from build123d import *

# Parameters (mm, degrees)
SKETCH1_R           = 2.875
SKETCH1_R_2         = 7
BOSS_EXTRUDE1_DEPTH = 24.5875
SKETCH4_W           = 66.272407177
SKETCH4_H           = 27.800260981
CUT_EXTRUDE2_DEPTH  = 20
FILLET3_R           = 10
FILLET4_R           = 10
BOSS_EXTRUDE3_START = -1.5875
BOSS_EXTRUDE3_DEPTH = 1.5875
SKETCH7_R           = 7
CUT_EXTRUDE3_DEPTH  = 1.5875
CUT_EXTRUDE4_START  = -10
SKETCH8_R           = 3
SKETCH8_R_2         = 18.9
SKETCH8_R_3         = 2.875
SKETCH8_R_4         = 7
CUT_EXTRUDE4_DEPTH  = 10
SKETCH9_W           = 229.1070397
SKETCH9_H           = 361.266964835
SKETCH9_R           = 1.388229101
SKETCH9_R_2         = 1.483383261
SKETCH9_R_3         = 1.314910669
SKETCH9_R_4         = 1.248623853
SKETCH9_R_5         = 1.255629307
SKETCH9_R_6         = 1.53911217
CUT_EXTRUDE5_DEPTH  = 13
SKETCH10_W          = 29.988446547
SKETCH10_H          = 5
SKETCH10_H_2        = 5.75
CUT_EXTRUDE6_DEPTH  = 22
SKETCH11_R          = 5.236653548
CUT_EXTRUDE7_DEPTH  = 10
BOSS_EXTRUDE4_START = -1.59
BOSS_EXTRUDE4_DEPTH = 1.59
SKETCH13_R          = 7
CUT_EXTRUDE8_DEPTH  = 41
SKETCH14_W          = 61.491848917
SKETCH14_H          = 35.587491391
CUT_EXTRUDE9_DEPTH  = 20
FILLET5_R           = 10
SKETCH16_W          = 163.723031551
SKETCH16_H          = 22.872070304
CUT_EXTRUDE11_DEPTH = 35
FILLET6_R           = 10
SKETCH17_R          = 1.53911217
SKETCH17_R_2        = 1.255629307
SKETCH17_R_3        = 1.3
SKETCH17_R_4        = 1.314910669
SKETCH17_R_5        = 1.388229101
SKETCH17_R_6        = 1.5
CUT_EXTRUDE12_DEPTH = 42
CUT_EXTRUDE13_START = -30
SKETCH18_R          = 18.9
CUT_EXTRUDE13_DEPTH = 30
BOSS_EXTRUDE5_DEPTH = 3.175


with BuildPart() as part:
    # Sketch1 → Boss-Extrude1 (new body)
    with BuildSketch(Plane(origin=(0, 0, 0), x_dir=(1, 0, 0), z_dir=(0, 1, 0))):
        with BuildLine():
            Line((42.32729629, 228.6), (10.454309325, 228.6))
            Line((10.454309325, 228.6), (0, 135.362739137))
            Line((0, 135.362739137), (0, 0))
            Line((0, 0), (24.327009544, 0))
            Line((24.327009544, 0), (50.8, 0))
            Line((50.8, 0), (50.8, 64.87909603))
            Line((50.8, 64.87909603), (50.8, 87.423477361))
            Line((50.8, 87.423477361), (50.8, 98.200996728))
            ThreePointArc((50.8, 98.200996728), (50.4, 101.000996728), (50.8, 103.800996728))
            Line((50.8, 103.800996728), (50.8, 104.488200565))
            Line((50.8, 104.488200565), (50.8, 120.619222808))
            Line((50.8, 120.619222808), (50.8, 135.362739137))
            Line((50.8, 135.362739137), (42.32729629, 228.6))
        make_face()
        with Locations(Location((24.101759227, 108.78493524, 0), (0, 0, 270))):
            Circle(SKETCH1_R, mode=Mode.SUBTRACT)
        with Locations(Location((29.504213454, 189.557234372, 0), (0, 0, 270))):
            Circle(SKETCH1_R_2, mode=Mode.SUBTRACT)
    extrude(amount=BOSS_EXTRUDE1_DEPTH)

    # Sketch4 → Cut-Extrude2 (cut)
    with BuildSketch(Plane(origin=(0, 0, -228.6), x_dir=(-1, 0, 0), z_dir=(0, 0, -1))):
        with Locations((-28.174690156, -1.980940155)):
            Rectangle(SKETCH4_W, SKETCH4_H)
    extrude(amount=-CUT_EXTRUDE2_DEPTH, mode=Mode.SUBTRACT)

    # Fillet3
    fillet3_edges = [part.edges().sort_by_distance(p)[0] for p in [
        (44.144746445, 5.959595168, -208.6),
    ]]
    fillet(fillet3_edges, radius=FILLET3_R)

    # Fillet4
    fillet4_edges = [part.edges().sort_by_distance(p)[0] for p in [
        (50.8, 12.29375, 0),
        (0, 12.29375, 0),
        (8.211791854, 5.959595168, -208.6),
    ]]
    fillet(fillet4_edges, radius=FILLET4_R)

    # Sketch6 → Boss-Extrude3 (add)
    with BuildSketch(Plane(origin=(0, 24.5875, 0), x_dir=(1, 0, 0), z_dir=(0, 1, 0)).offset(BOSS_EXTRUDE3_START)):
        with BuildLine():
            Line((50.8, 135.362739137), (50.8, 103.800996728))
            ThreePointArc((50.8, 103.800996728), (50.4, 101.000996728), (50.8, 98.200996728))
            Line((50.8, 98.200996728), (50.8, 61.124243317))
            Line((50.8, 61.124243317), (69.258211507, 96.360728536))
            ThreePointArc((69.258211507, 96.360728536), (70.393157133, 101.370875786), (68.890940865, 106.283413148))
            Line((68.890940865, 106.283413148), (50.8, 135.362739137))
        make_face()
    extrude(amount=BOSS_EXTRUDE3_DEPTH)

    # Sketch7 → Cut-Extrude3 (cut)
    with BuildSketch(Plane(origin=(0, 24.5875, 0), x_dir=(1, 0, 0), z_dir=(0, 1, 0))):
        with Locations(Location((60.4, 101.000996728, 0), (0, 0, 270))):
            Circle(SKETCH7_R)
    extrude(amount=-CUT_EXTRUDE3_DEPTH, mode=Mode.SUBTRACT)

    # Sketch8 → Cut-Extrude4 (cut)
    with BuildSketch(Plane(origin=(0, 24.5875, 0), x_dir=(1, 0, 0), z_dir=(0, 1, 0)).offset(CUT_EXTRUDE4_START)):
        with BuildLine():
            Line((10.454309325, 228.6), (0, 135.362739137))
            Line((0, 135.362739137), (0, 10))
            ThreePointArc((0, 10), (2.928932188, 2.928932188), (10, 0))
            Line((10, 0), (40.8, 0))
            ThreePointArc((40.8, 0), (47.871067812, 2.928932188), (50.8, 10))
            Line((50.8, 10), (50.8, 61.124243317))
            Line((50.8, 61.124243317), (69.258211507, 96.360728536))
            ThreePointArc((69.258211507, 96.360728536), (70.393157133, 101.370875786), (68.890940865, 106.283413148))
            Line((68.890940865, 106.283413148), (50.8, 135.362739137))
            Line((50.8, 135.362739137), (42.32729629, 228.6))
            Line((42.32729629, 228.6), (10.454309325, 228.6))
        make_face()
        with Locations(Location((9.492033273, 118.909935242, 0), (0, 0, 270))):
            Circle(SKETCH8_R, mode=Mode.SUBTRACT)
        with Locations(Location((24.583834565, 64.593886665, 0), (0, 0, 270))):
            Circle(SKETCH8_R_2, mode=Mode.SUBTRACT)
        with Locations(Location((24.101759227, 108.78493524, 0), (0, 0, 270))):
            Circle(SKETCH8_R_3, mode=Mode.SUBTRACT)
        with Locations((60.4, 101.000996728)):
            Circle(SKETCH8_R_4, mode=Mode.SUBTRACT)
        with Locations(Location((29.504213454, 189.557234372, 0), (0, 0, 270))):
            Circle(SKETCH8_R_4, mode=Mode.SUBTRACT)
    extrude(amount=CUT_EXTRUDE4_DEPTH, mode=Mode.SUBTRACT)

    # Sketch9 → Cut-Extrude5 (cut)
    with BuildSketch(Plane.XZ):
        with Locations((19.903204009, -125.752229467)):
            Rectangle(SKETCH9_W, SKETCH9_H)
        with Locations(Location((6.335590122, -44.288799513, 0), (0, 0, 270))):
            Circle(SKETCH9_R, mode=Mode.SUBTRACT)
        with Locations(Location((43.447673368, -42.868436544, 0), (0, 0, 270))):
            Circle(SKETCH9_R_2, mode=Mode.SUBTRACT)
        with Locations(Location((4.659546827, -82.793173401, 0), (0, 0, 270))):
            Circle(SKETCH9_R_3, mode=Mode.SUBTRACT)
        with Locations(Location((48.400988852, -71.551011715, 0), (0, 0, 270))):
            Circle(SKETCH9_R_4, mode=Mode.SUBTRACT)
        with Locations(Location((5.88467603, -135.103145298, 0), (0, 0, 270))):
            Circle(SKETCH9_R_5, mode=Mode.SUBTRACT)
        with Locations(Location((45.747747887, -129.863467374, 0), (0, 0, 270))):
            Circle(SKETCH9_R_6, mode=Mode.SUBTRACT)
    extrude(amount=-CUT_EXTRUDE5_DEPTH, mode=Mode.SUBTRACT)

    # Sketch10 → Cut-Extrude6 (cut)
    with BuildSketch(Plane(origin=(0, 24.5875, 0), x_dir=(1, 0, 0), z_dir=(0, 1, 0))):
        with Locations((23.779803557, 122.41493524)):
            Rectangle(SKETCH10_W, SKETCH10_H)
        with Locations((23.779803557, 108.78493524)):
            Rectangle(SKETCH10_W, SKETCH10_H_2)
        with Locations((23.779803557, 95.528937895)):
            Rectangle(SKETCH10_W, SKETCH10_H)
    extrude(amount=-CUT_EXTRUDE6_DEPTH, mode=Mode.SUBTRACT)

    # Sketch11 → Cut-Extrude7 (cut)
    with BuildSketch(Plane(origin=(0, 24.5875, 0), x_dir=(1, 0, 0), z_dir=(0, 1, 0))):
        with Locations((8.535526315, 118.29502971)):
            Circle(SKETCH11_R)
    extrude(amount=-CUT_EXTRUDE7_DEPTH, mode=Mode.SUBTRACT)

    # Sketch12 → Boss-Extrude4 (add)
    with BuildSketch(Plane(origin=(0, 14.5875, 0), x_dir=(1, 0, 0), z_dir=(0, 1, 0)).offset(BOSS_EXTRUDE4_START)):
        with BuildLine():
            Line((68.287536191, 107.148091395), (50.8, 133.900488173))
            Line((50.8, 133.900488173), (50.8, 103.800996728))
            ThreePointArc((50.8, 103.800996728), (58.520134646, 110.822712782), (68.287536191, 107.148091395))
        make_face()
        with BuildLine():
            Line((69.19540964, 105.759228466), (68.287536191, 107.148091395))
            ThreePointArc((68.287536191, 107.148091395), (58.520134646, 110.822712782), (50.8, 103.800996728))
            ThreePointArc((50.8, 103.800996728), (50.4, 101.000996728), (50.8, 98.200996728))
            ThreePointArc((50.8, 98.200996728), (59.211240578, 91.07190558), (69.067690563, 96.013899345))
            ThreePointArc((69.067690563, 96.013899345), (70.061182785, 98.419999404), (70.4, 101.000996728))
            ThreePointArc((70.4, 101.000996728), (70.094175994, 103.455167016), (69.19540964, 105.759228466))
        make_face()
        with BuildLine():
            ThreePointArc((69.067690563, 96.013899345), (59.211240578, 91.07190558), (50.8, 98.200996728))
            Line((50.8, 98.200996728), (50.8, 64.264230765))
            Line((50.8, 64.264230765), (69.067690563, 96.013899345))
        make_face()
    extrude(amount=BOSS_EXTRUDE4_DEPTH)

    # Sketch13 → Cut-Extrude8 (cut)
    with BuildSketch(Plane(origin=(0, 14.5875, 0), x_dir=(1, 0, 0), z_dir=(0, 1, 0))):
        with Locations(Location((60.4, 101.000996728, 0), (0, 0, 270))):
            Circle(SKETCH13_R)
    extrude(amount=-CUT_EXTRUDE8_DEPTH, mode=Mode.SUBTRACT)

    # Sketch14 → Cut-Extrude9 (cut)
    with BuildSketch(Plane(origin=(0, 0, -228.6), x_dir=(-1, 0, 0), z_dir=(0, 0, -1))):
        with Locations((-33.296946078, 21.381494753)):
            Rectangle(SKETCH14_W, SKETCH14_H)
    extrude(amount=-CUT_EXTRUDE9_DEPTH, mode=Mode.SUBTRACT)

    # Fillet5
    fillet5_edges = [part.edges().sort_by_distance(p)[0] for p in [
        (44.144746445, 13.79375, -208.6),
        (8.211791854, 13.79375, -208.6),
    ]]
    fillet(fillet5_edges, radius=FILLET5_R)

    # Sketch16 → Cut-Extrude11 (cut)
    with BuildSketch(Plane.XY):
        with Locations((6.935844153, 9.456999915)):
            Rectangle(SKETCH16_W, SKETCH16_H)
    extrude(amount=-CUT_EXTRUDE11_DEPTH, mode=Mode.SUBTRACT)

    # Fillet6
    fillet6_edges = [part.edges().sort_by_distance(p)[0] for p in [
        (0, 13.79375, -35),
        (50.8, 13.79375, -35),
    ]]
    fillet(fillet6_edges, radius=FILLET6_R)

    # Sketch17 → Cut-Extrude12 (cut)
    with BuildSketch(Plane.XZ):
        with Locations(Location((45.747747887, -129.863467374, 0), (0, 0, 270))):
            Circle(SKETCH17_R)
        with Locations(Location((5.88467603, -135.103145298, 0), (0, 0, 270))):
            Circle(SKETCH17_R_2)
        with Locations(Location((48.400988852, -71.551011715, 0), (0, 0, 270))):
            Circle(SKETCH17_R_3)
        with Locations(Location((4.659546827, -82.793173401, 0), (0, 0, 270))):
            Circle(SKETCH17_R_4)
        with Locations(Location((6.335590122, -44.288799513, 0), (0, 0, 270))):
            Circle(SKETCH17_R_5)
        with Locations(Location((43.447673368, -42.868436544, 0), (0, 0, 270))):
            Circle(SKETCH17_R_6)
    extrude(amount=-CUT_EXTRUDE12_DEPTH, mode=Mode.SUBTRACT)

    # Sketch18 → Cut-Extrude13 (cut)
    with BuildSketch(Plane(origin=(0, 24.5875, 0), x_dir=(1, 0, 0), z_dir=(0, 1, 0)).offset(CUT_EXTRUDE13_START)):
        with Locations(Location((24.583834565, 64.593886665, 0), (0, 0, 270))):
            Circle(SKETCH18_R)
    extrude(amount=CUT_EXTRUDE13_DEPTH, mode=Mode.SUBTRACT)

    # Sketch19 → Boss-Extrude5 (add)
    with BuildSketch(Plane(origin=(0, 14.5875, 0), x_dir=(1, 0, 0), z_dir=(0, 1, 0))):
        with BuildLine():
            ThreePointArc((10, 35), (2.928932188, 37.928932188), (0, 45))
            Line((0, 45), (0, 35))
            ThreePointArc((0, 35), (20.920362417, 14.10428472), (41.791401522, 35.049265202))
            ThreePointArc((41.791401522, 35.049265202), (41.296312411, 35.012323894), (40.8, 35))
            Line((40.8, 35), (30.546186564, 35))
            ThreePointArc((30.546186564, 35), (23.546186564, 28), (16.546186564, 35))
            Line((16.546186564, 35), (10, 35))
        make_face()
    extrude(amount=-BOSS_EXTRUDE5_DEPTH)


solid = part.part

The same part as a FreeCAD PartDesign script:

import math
import FreeCAD as App
import Part
import Sketcher
Q = App.Units.Quantity


def edges_at(feature, points):
    """Names of the edges that pass closest to the given points."""
    edges = feature.Shape.Edges
    near = lambda p: min(range(len(edges)), key=lambda i: edges[i].distToShape(Part.Vertex(*p))[0])
    return sorted({f"Edge{near(p) + 1}" for p in points})

doc = App.newDocument("Part")
body = doc.addObject("PartDesign::Body", "Body")

sketch1 = body.newObject("Sketcher::SketchObject", "Sketch")
sketch1.AttachmentSupport = (doc.getObject("XZ_Plane"), [""])
sketch1.MapMode = "FlatFace"
sketch1.addGeometry(Part.LineSegment(App.Vector(42.327296, -228.6, 0), App.Vector(10.454309, -228.6, 0)), False)
sketch1.addGeometry(Part.LineSegment(App.Vector(10.454309, -228.6, 0), App.Vector(0, -135.362739, 0)), False)
sketch1.addGeometry(Part.LineSegment(App.Vector(0, -135.362739, 0), App.Vector(0, 0, 0)), False)
sketch1.addGeometry(Part.LineSegment(App.Vector(0, 0, 0), App.Vector(50.8, 0, 0)), False)
sketch1.addGeometry(Part.LineSegment(App.Vector(50.8, 0, 0), App.Vector(50.8, -98.200997, 0)), False)
sketch1.addGeometry(Part.ArcOfCircle(Part.Circle(App.Vector(60.4, -101.000997, 0), App.Vector(0, 0, 1), 10), math.radians(163.739795), math.radians(196.260205)), False)
sketch1.addGeometry(Part.LineSegment(App.Vector(50.8, -103.800997, 0), App.Vector(50.8, -135.362739, 0)), False)
sketch1.addGeometry(Part.LineSegment(App.Vector(50.8, -135.362739, 0), App.Vector(42.327296, -228.6, 0)), False)
sketch1.addGeometry(Part.Circle(App.Vector(24.101759, -108.784935, 0), App.Vector(0, 0, 1), 2.875), False)
sketch1.addGeometry(Part.Circle(App.Vector(29.504213, -189.557234, 0), App.Vector(0, 0, 1), 7), False)
sketch1.addConstraint(Sketcher.Constraint("Coincident", 0, 2, 1, 1))
sketch1.addConstraint(Sketcher.Constraint("Coincident", 1, 2, 2, 1))
sketch1.addConstraint(Sketcher.Constraint("Coincident", 2, 2, 3, 1))
sketch1.addConstraint(Sketcher.Constraint("Coincident", 3, 2, 4, 1))
sketch1.addConstraint(Sketcher.Constraint("Coincident", 4, 2, 5, 1))
sketch1.addConstraint(Sketcher.Constraint("Coincident", 5, 2, 6, 1))
sketch1.addConstraint(Sketcher.Constraint("Coincident", 6, 2, 7, 1))
sketch1.addConstraint(Sketcher.Constraint("Coincident", 7, 2, 0, 1))
sketch1.addConstraint(Sketcher.Constraint("Horizontal", 0))
sketch1.addConstraint(Sketcher.Constraint("Vertical", 2))
sketch1.addConstraint(Sketcher.Constraint("Horizontal", 3))
sketch1.addConstraint(Sketcher.Constraint("Vertical", 4))
sketch1.addConstraint(Sketcher.Constraint("Vertical", 6))
sketch1.addConstraint(Sketcher.Constraint("Coincident", 2, 2, -1, 1))
sketch1.addConstraint(Sketcher.Constraint("Horizontal", 1, 2, 6, 2))
sketch1.addConstraint(Sketcher.Constraint("Vertical", 4, 2, 5, 2))
sketch1.addConstraint(Sketcher.Constraint("Diameter", 9, Q("14 mm")))
sketch1.addConstraint(Sketcher.Constraint("Radius", 5, Q("10 mm")))
sketch1.addConstraint(Sketcher.Constraint("Diameter", 8, Q("5.75 mm")))
sketch1.addConstraint(Sketcher.Constraint("DistanceX", 3, 1, 3, 2, Q("50.8 mm")))
sketch1.addConstraint(Sketcher.Constraint("DistanceX", -1, 1, 5, 3, Q("60.4 mm")))
sketch1.addConstraint(Sketcher.Constraint("DistanceY", 0, 2, -1, 1, Q("228.6 mm")))
sketch1.addConstraint(Sketcher.Constraint("DistanceY", 2, 1, 2, 2, Q("135.362739 mm")))
sketch1.addConstraint(Sketcher.Constraint("DistanceY", 9, 3, 8, 3, Q("80.772299 mm")))
sketch1.addConstraint(Sketcher.Constraint("Distance", 1, Q("93.821529 mm")))
sketch1.addConstraint(Sketcher.Constraint("DistanceX", 0, 2, 0, 1, Q("31.872987 mm")))
sketch1.addConstraint(Sketcher.Constraint("DistanceY", 4, 2, 4, 1, Q("98.200997 mm")))
sketch1.addConstraint(Sketcher.Constraint("DistanceX", -1, 1, 8, 3, Q("24.101759 mm")))
sketch1.addConstraint(Sketcher.Constraint("DistanceY", 8, 3, 5, 3, Q("7.783939 mm")))
sketch1.addConstraint(Sketcher.Constraint("DistanceX", -1, 1, 9, 3, Q("29.504213 mm")))
pad1 = body.newObject("PartDesign::Pad", "Pad")
pad1.Profile = sketch1
pad1.Length = 24.5875
pad1.Reversed = True

sketch2 = body.newObject("Sketcher::SketchObject", "Sketch001")
sketch2.AttachmentSupport = (doc.getObject("XY_Plane"), [""])
sketch2.MapMode = "FlatFace"
sketch2.AttachmentOffset = App.Placement(App.Vector(0, 0, -228.6), App.Rotation())
sketch2.addGeometry(Part.LineSegment(App.Vector(61.310894, 11.91919, 0), App.Vector(61.310894, -15.881071, 0)), False)
sketch2.addGeometry(Part.LineSegment(App.Vector(61.310894, -15.881071, 0), App.Vector(-4.961513, -15.881071, 0)), False)
sketch2.addGeometry(Part.LineSegment(App.Vector(-4.961513, -15.881071, 0), App.Vector(-4.961513, 11.91919, 0)), False)
sketch2.addGeometry(Part.LineSegment(App.Vector(-4.961513, 11.91919, 0), App.Vector(61.310894, 11.91919, 0)), False)
sketch2.addConstraint(Sketcher.Constraint("Coincident", 0, 2, 1, 1))
sketch2.addConstraint(Sketcher.Constraint("Coincident", 1, 2, 2, 1))
sketch2.addConstraint(Sketcher.Constraint("Coincident", 2, 2, 3, 1))
sketch2.addConstraint(Sketcher.Constraint("Coincident", 3, 2, 0, 1))
sketch2.addConstraint(Sketcher.Constraint("Vertical", 0))
sketch2.addConstraint(Sketcher.Constraint("Horizontal", 1))
sketch2.addConstraint(Sketcher.Constraint("Vertical", 2))
sketch2.addConstraint(Sketcher.Constraint("Horizontal", 3))
sketch2.addConstraint(Sketcher.Constraint("DistanceY", 0, 2, 0, 1, Q("27.800261 mm")))
sketch2.addConstraint(Sketcher.Constraint("DistanceX", 1, 2, 1, 1, Q("66.272407 mm")))
sketch2.addConstraint(Sketcher.Constraint("DistanceY", 0, 2, -1, 1, Q("15.881071 mm")))
sketch2.addConstraint(Sketcher.Constraint("DistanceX", -1, 1, 0, 2, Q("61.310894 mm")))
pocket1 = body.newObject("PartDesign::Pocket", "Pocket")
pocket1.Profile = sketch2
pocket1.Length = 20
pocket1.Reversed = True
doc.recompute()

fillet = body.newObject("PartDesign::Fillet", "Fillet")
fillet.Base = (pocket1, edges_at(pocket1, [(44.145, 5.96, -208.6)]))
fillet.Radius = 10
doc.recompute()

fillet2 = body.newObject("PartDesign::Fillet", "Fillet001")
fillet2.Base = (fillet, edges_at(fillet, [(50.8, 12.294, 0), (0, 12.294, 0), (8.212, 5.96, -208.6)]))
fillet2.Radius = 10

sketch3 = body.newObject("Sketcher::SketchObject", "Sketch002")
sketch3.AttachmentSupport = (doc.getObject("XZ_Plane"), [""])
sketch3.MapMode = "FlatFace"
sketch3.AttachmentOffset = App.Placement(App.Vector(0, 0, -23), App.Rotation())
sketch3.addGeometry(Part.LineSegment(App.Vector(50.8, -135.362739, 0), App.Vector(50.8, -103.800997, 0)), False)
sketch3.addGeometry(Part.ArcOfCircle(Part.Circle(App.Vector(60.4, -101.000997, 0), App.Vector(0, 0, 1), 10), math.radians(163.739795), math.radians(196.260205)), False)
sketch3.addGeometry(Part.LineSegment(App.Vector(50.8, -98.200997, 0), App.Vector(50.8, -61.124243, 0)), False)
sketch3.addGeometry(Part.LineSegment(App.Vector(50.8, -61.124243, 0), App.Vector(69.258212, -96.360729, 0)), False)
sketch3.addGeometry(Part.ArcOfCircle(Part.Circle(App.Vector(60.4, -101.000997, 0), App.Vector(0, 0, 1), 10), math.radians(-31.886726), math.radians(27.647258)), False)
sketch3.addGeometry(Part.LineSegment(App.Vector(68.890941, -106.283413, 0), App.Vector(50.8, -135.362739, 0)), False)
sketch3.addConstraint(Sketcher.Constraint("Coincident", 0, 2, 1, 2))
sketch3.addConstraint(Sketcher.Constraint("Coincident", 1, 1, 2, 1))
sketch3.addConstraint(Sketcher.Constraint("Coincident", 2, 2, 3, 1))
sketch3.addConstraint(Sketcher.Constraint("Tangent", 3, 2, 4, 2))
sketch3.addConstraint(Sketcher.Constraint("Tangent", 4, 1, 5, 1))
sketch3.addConstraint(Sketcher.Constraint("Coincident", 5, 2, 0, 1))
sketch3.addConstraint(Sketcher.Constraint("Vertical", 0))
sketch3.addConstraint(Sketcher.Constraint("Vertical", 2))
sketch3.addConstraint(Sketcher.Constraint("Coincident", 4, 3, 1, 3))
sketch3.addConstraint(Sketcher.Constraint("Equal", 1, 4))
sketch3.addConstraint(Sketcher.Constraint("Vertical", 0, 2, 1, 1))
sketch3.addConstraint(Sketcher.Constraint("Radius", 1, Q("10 mm")))
sketch3.addConstraint(Sketcher.Constraint("DistanceX", -1, 1, 1, 3, Q("60.4 mm")))
sketch3.addConstraint(Sketcher.Constraint("DistanceX", -1, 1, 0, 2, Q("50.8 mm")))
sketch3.addConstraint(Sketcher.Constraint("Distance", 3, Q("39.778329 mm")))
sketch3.addConstraint(Sketcher.Constraint("DistanceY", 0, 1, 0, 2, Q("31.561742 mm")))
sketch3.addConstraint(Sketcher.Constraint("DistanceY", 3, 2, -1, 1, Q("96.360729 mm")))
pad2 = body.newObject("PartDesign::Pad", "Pad001")
pad2.Profile = sketch3
pad2.Length = 1.5875
pad2.Reversed = True

sketch4 = body.newObject("Sketcher::SketchObject", "Sketch003")
sketch4.AttachmentSupport = (doc.getObject("XZ_Plane"), [""])
sketch4.MapMode = "FlatFace"
sketch4.AttachmentOffset = App.Placement(App.Vector(0, 0, -24.5875), App.Rotation())
sketch4.addGeometry(Part.Circle(App.Vector(60.4, -101.000997, 0), App.Vector(0, 0, 1), 7), False)
sketch4.addConstraint(Sketcher.Constraint("Diameter", 0, Q("14 mm")))
sketch4.addConstraint(Sketcher.Constraint("DistanceX", -1, 1, 0, 3, Q("60.4 mm")))
sketch4.addConstraint(Sketcher.Constraint("DistanceY", 0, 3, -1, 1, Q("101.000997 mm")))
pocket2 = body.newObject("PartDesign::Pocket", "Pocket001")
pocket2.Profile = sketch4
pocket2.Length = 1.5875
pocket2.Reversed = True

sketch5 = body.newObject("Sketcher::SketchObject", "Sketch004")
sketch5.AttachmentSupport = (doc.getObject("XZ_Plane"), [""])
sketch5.MapMode = "FlatFace"
sketch5.AttachmentOffset = App.Placement(App.Vector(0, 0, -14.5875), App.Rotation())
sketch5.addGeometry(Part.LineSegment(App.Vector(10.454309, -228.6, 0), App.Vector(0, -135.362739, 0)), False)
sketch5.addGeometry(Part.LineSegment(App.Vector(0, -135.362739, 0), App.Vector(0, -10, 0)), False)
sketch5.addGeometry(Part.ArcOfCircle(Part.Circle(App.Vector(10, -10, 0), App.Vector(0, 0, 1), 10), math.radians(90), math.radians(180)), False)
sketch5.addGeometry(Part.LineSegment(App.Vector(10, 0, 0), App.Vector(40.8, 0, 0)), False)
sketch5.addGeometry(Part.ArcOfCircle(Part.Circle(App.Vector(40.8, -10, 0), App.Vector(0, 0, 1), 10), math.radians(0), math.radians(90)), False)
sketch5.addGeometry(Part.LineSegment(App.Vector(50.8, -10, 0), App.Vector(50.8, -61.124243, 0)), False)
sketch5.addGeometry(Part.LineSegment(App.Vector(50.8, -61.124243, 0), App.Vector(69.258212, -96.360729, 0)), False)
sketch5.addGeometry(Part.ArcOfCircle(Part.Circle(App.Vector(60.4, -101.000997, 0), App.Vector(0, 0, 1), 10), math.radians(-31.886726), math.radians(27.647258)), False)
sketch5.addGeometry(Part.LineSegment(App.Vector(68.890941, -106.283413, 0), App.Vector(50.8, -135.362739, 0)), False)
sketch5.addGeometry(Part.LineSegment(App.Vector(50.8, -135.362739, 0), App.Vector(42.327296, -228.6, 0)), False)
sketch5.addGeometry(Part.LineSegment(App.Vector(42.327296, -228.6, 0), App.Vector(10.454309, -228.6, 0)), False)
sketch5.addGeometry(Part.Circle(App.Vector(24.583835, -64.593887, 0), App.Vector(0, 0, 1), 18.9), False)
sketch5.addGeometry(Part.Circle(App.Vector(9.492033, -118.909935, 0), App.Vector(0, 0, 1), 3), False)
sketch5.addGeometry(Part.Circle(App.Vector(24.101759, -108.784935, 0), App.Vector(0, 0, 1), 2.875), False)
sketch5.addGeometry(Part.Circle(App.Vector(60.4, -101.000997, 0), App.Vector(0, 0, 1), 7), False)
sketch5.addGeometry(Part.Circle(App.Vector(29.504213, -189.557234, 0), App.Vector(0, 0, 1), 7), False)
sketch5.addConstraint(Sketcher.Constraint("Coincident", 0, 2, 1, 1))
sketch5.addConstraint(Sketcher.Constraint("Tangent", 1, 2, 2, 2))
sketch5.addConstraint(Sketcher.Constraint("Tangent", 2, 1, 3, 1))
sketch5.addConstraint(Sketcher.Constraint("Tangent", 3, 2, 4, 2))
sketch5.addConstraint(Sketcher.Constraint("Tangent", 4, 1, 5, 1))
sketch5.addConstraint(Sketcher.Constraint("Coincident", 5, 2, 6, 1))
sketch5.addConstraint(Sketcher.Constraint("Tangent", 6, 2, 7, 2))
sketch5.addConstraint(Sketcher.Constraint("Tangent", 7, 1, 8, 1))
sketch5.addConstraint(Sketcher.Constraint("Coincident", 8, 2, 9, 1))
sketch5.addConstraint(Sketcher.Constraint("Coincident", 9, 2, 10, 1))
sketch5.addConstraint(Sketcher.Constraint("Coincident", 10, 2, 0, 1))
sketch5.addConstraint(Sketcher.Constraint("Vertical", 1))
sketch5.addConstraint(Sketcher.Constraint("Horizontal", 3))
sketch5.addConstraint(Sketcher.Constraint("Vertical", 5))
sketch5.addConstraint(Sketcher.Constraint("Horizontal", 10))
sketch5.addConstraint(Sketcher.Constraint("Coincident", 14, 3, 7, 3))
sketch5.addConstraint(Sketcher.Constraint("Equal", 2, 4))
sketch5.addConstraint(Sketcher.Constraint("Equal", 4, 7))
sketch5.addConstraint(Sketcher.Constraint("Equal", 14, 15))
sketch5.addConstraint(Sketcher.Constraint("PointOnObject", 0, 2, -2))
sketch5.addConstraint(Sketcher.Constraint("PointOnObject", 2, 1, -1))
sketch5.addConstraint(Sketcher.Constraint("Horizontal", 0, 2, 8, 2))
sketch5.addConstraint(Sketcher.Constraint("Vertical", 5, 2, 8, 2))
sketch5.addConstraint(Sketcher.Constraint("Diameter", 12, Q("6 mm")))
sketch5.addConstraint(Sketcher.Constraint("Diameter", 14, Q("14 mm")))
sketch5.addConstraint(Sketcher.Constraint("Radius", 2, Q("10 mm")))
sketch5.addConstraint(Sketcher.Constraint("Diameter", 11, Q("37.8 mm")))
sketch5.addConstraint(Sketcher.Constraint("Diameter", 13, Q("5.75 mm")))
sketch5.addConstraint(Sketcher.Constraint("DistanceX", 3, 1, 3, 2, Q("30.8 mm")))
sketch5.addConstraint(Sketcher.Constraint("DistanceX", -1, 1, 7, 3, Q("60.4 mm")))
sketch5.addConstraint(Sketcher.Constraint("DistanceY", 9, 2, -1, 1, Q("228.6 mm")))
sketch5.addConstraint(Sketcher.Constraint("DistanceY", 12, 3, 13, 3, Q("10.125 mm")))
sketch5.addConstraint(Sketcher.Constraint("DistanceY", 1, 1, 1, 2, Q("125.362739 mm")))
sketch5.addConstraint(Sketcher.Constraint("DistanceX", 12, 3, 11, 3, Q("15.091801 mm")))
sketch5.addConstraint(Sketcher.Constraint("DistanceY", 15, 3, 12, 3, Q("70.647299 mm")))
sketch5.addConstraint(Sketcher.Constraint("Distance", 0, Q("93.821529 mm")))
sketch5.addConstraint(Sketcher.Constraint("Distance", 6, Q("39.778329 mm")))
sketch5.addConstraint(Sketcher.Constraint("DistanceX", 10, 2, 10, 1, Q("31.872987 mm")))
sketch5.addConstraint(Sketcher.Constraint("DistanceY", 5, 2, 5, 1, Q("51.124243 mm")))
sketch5.addConstraint(Sketcher.Constraint("DistanceX", -1, 1, 13, 3, Q("24.101759 mm")))
sketch5.addConstraint(Sketcher.Constraint("DistanceY", 7, 3, 11, 3, Q("36.40711 mm")))
sketch5.addConstraint(Sketcher.Constraint("DistanceY", 12, 3, 7, 3, Q("17.908939 mm")))
sketch5.addConstraint(Sketcher.Constraint("DistanceX", 12, 3, 15, 3, Q("20.01218 mm")))
sketch5.addConstraint(Sketcher.Constraint("DistanceX", -1, 1, 11, 3, Q("24.583835 mm")))
pocket3 = body.newObject("PartDesign::Pocket", "Pocket002")
pocket3.Profile = sketch5
pocket3.Length = 10

sketch6 = body.newObject("Sketcher::SketchObject", "Sketch005")
sketch6.AttachmentSupport = (doc.getObject("XZ_Plane"), [""])
sketch6.MapMode = "FlatFace"
sketch6.addGeometry(Part.LineSegment(App.Vector(-94.650316, 54.881253, 0), App.Vector(-94.650316, -306.385712, 0)), False)
sketch6.addGeometry(Part.LineSegment(App.Vector(-94.650316, -306.385712, 0), App.Vector(134.456724, -306.385712, 0)), False)
sketch6.addGeometry(Part.LineSegment(App.Vector(134.456724, -306.385712, 0), App.Vector(134.456724, 54.881253, 0)), False)
sketch6.addGeometry(Part.LineSegment(App.Vector(134.456724, 54.881253, 0), App.Vector(-94.650316, 54.881253, 0)), False)
sketch6.addGeometry(Part.Circle(App.Vector(5.884676, -135.103145, 0), App.Vector(0, 0, 1), 1.255629), False)
sketch6.addGeometry(Part.Circle(App.Vector(45.747748, -129.863467, 0), App.Vector(0, 0, 1), 1.539112), False)
sketch6.addGeometry(Part.Circle(App.Vector(4.659547, -82.793173, 0), App.Vector(0, 0, 1), 1.314911), False)
sketch6.addGeometry(Part.Circle(App.Vector(6.33559, -44.2888, 0), App.Vector(0, 0, 1), 1.388229), False)
sketch6.addGeometry(Part.Circle(App.Vector(48.400989, -71.551012, 0), App.Vector(0, 0, 1), 1.248624), False)
sketch6.addGeometry(Part.Circle(App.Vector(43.447673, -42.868437, 0), App.Vector(0, 0, 1), 1.483383), False)
sketch6.addConstraint(Sketcher.Constraint("Coincident", 0, 2, 1, 1))
sketch6.addConstraint(Sketcher.Constraint("Coincident", 1, 2, 2, 1))
sketch6.addConstraint(Sketcher.Constraint("Coincident", 2, 2, 3, 1))
sketch6.addConstraint(Sketcher.Constraint("Coincident", 3, 2, 0, 1))
sketch6.addConstraint(Sketcher.Constraint("Vertical", 0))
sketch6.addConstraint(Sketcher.Constraint("Horizontal", 1))
sketch6.addConstraint(Sketcher.Constraint("Vertical", 2))
sketch6.addConstraint(Sketcher.Constraint("Horizontal", 3))
sketch6.addConstraint(Sketcher.Constraint("Diameter", 4, Q("2.511259 mm")))
sketch6.addConstraint(Sketcher.Constraint("Diameter", 6, Q("2.629821 mm")))
sketch6.addConstraint(Sketcher.Constraint("Diameter", 7, Q("2.776458 mm")))
sketch6.addConstraint(Sketcher.Constraint("Diameter", 5, Q("3.078224 mm")))
sketch6.addConstraint(Sketcher.Constraint("Diameter", 8, Q("2.497248 mm")))
sketch6.addConstraint(Sketcher.Constraint("Diameter", 9, Q("2.966767 mm")))
sketch6.addConstraint(Sketcher.Constraint("DistanceX", 1, 1, 1, 2, Q("229.10704 mm")))
sketch6.addConstraint(Sketcher.Constraint("DistanceY", 7, 3, -1, 1, Q("44.2888 mm")))
sketch6.addConstraint(Sketcher.Constraint("DistanceX", 6, 3, 5, 3, Q("41.088201 mm")))
sketch6.addConstraint(Sketcher.Constraint("DistanceX", 7, 3, 8, 3, Q("42.065399 mm")))
sketch6.addConstraint(Sketcher.Constraint("DistanceY", 0, 2, 8, 3, Q("234.8347 mm")))
sketch6.addConstraint(Sketcher.Constraint("DistanceY", 4, 3, 3, 2, Q("189.984398 mm")))
sketch6.addConstraint(Sketcher.Constraint("DistanceY", 0, 2, 0, 1, Q("361.266965 mm")))
sketch6.addConstraint(Sketcher.Constraint("DistanceX", -1, 1, 7, 3, Q("6.33559 mm")))
sketch6.addConstraint(Sketcher.Constraint("DistanceY", 8, 3, -1, 1, Q("71.551012 mm")))
sketch6.addConstraint(Sketcher.Constraint("DistanceX", 4, 3, 5, 3, Q("39.863072 mm")))
sketch6.addConstraint(Sketcher.Constraint("DistanceY", 4, 3, 6, 3, Q("52.309972 mm")))
sketch6.addConstraint(Sketcher.Constraint("DistanceX", 5, 3, 8, 3, Q("2.653241 mm")))
sketch6.addConstraint(Sketcher.Constraint("DistanceY", 5, 3, 9, 3, Q("86.995031 mm")))
sketch6.addConstraint(Sketcher.Constraint("DistanceY", 4, 3, 9, 3, Q("92.234709 mm")))
sketch6.addConstraint(Sketcher.Constraint("DistanceX", 0, 2, 4, 3, Q("100.534992 mm")))
sketch6.addConstraint(Sketcher.Constraint("DistanceX", 9, 3, 2, 2, Q("91.00905 mm")))
pocket4 = body.newObject("PartDesign::Pocket", "Pocket003")
pocket4.Profile = sketch6
pocket4.Length = 13

sketch7 = body.newObject("Sketcher::SketchObject", "Sketch006")
sketch7.AttachmentSupport = (doc.getObject("XZ_Plane"), [""])
sketch7.MapMode = "FlatFace"
sketch7.AttachmentOffset = App.Placement(App.Vector(0, 0, -24.5875), App.Rotation())
sketch7.addGeometry(Part.LineSegment(App.Vector(8.78558, -124.914935, 0), App.Vector(8.78558, -119.914935, 0)), False)
sketch7.addGeometry(Part.LineSegment(App.Vector(8.78558, -119.914935, 0), App.Vector(38.774027, -119.914935, 0)), False)
sketch7.addGeometry(Part.LineSegment(App.Vector(38.774027, -119.914935, 0), App.Vector(38.774027, -124.914935, 0)), False)
sketch7.addGeometry(Part.LineSegment(App.Vector(38.774027, -124.914935, 0), App.Vector(8.78558, -124.914935, 0)), False)
sketch7.addGeometry(Part.LineSegment(App.Vector(8.78558, -111.659935, 0), App.Vector(8.78558, -105.909935, 0)), False)
sketch7.addGeometry(Part.LineSegment(App.Vector(8.78558, -105.909935, 0), App.Vector(38.774027, -105.909935, 0)), False)
sketch7.addGeometry(Part.LineSegment(App.Vector(38.774027, -105.909935, 0), App.Vector(38.774027, -111.659935, 0)), False)
sketch7.addGeometry(Part.LineSegment(App.Vector(38.774027, -111.659935, 0), App.Vector(8.78558, -111.659935, 0)), False)
sketch7.addGeometry(Part.LineSegment(App.Vector(8.78558, -98.028938, 0), App.Vector(8.78558, -93.028938, 0)), False)
sketch7.addGeometry(Part.LineSegment(App.Vector(8.78558, -93.028938, 0), App.Vector(38.774027, -93.028938, 0)), False)
sketch7.addGeometry(Part.LineSegment(App.Vector(38.774027, -93.028938, 0), App.Vector(38.774027, -98.028938, 0)), False)
sketch7.addGeometry(Part.LineSegment(App.Vector(38.774027, -98.028938, 0), App.Vector(8.78558, -98.028938, 0)), False)
sketch7.addConstraint(Sketcher.Constraint("Coincident", 0, 2, 1, 1))
sketch7.addConstraint(Sketcher.Constraint("Coincident", 1, 2, 2, 1))
sketch7.addConstraint(Sketcher.Constraint("Coincident", 2, 2, 3, 1))
sketch7.addConstraint(Sketcher.Constraint("Coincident", 3, 2, 0, 1))
sketch7.addConstraint(Sketcher.Constraint("Coincident", 4, 2, 5, 1))
sketch7.addConstraint(Sketcher.Constraint("Coincident", 5, 2, 6, 1))
sketch7.addConstraint(Sketcher.Constraint("Coincident", 6, 2, 7, 1))
sketch7.addConstraint(Sketcher.Constraint("Coincident", 7, 2, 4, 1))
sketch7.addConstraint(Sketcher.Constraint("Coincident", 8, 2, 9, 1))
sketch7.addConstraint(Sketcher.Constraint("Coincident", 9, 2, 10, 1))
sketch7.addConstraint(Sketcher.Constraint("Coincident", 10, 2, 11, 1))
sketch7.addConstraint(Sketcher.Constraint("Coincident", 11, 2, 8, 1))
sketch7.addConstraint(Sketcher.Constraint("Vertical", 0))
sketch7.addConstraint(Sketcher.Constraint("Horizontal", 1))
sketch7.addConstraint(Sketcher.Constraint("Vertical", 2))
sketch7.addConstraint(Sketcher.Constraint("Horizontal", 3))
sketch7.addConstraint(Sketcher.Constraint("Vertical", 4))
sketch7.addConstraint(Sketcher.Constraint("Horizontal", 5))
sketch7.addConstraint(Sketcher.Constraint("Vertical", 6))
sketch7.addConstraint(Sketcher.Constraint("Horizontal", 7))
sketch7.addConstraint(Sketcher.Constraint("Vertical", 8))
sketch7.addConstraint(Sketcher.Constraint("Horizontal", 9))
sketch7.addConstraint(Sketcher.Constraint("Vertical", 10))
sketch7.addConstraint(Sketcher.Constraint("Horizontal", 11))
sketch7.addConstraint(Sketcher.Constraint("Vertical", 3, 2, 4, 2))
sketch7.addConstraint(Sketcher.Constraint("Vertical", 2, 2, 5, 2))
sketch7.addConstraint(Sketcher.Constraint("Vertical", 7, 2, 8, 2))
sketch7.addConstraint(Sketcher.Constraint("Vertical", 6, 2, 9, 2))
sketch7.addConstraint(Sketcher.Constraint("Equal", 2, 8))
sketch7.addConstraint(Sketcher.Constraint("DistanceY", 0, 1, 0, 2, Q("5 mm")))
sketch7.addConstraint(Sketcher.Constraint("DistanceY", 4, 1, 4, 2, Q("5.75 mm")))
sketch7.addConstraint(Sketcher.Constraint("DistanceY", 0, 2, 4, 2, Q("14.005 mm")))
sketch7.addConstraint(Sketcher.Constraint("DistanceX", 1, 1, 1, 2, Q("29.988447 mm")))
sketch7.addConstraint(Sketcher.Constraint("DistanceX", -1, 1, 0, 2, Q("8.78558 mm")))
sketch7.addConstraint(Sketcher.Constraint("DistanceY", 0, 2, -1, 1, Q("119.914935 mm")))
sketch7.addConstraint(Sketcher.Constraint("DistanceY", 8, 2, -1, 1, Q("93.028938 mm")))
pocket5 = body.newObject("PartDesign::Pocket", "Pocket004")
pocket5.Profile = sketch7
pocket5.Length = 22
pocket5.Reversed = True

sketch8 = body.newObject("Sketcher::SketchObject", "Sketch007")
sketch8.AttachmentSupport = (doc.getObject("XZ_Plane"), [""])
sketch8.MapMode = "FlatFace"
sketch8.AttachmentOffset = App.Placement(App.Vector(0, 0, -24.5875), App.Rotation())
sketch8.addGeometry(Part.Circle(App.Vector(8.535526, -118.29503, 0), App.Vector(0, 0, 1), 5.236654), False)
sketch8.addConstraint(Sketcher.Constraint("Diameter", 0, Q("10.473307 mm")))
sketch8.addConstraint(Sketcher.Constraint("DistanceY", 0, 3, -1, 1, Q("118.29503 mm")))
sketch8.addConstraint(Sketcher.Constraint("DistanceX", -1, 1, 0, 3, Q("8.535526 mm")))
pocket6 = body.newObject("PartDesign::Pocket", "Pocket005")
pocket6.Profile = sketch8
pocket6.Length = 10
pocket6.Reversed = True

sketch9 = body.newObject("Sketcher::SketchObject", "Sketch008")
sketch9.AttachmentSupport = (doc.getObject("XZ_Plane"), [""])
sketch9.MapMode = "FlatFace"
sketch9.AttachmentOffset = App.Placement(App.Vector(0, 0, -12.9975), App.Rotation())
sketch9.addGeometry(Part.LineSegment(App.Vector(68.287536, -107.148091, 0), App.Vector(50.8, -133.900488, 0)), False)
sketch9.addGeometry(Part.LineSegment(App.Vector(50.8, -133.900488, 0), App.Vector(50.8, -103.800997, 0)), False)
sketch9.addGeometry(Part.ArcOfCircle(Part.Circle(App.Vector(60.4, -101.000997, 0), App.Vector(0, 0, 1), 10), math.radians(163.739795), math.radians(196.260205)), False)
sketch9.addGeometry(Part.LineSegment(App.Vector(50.8, -98.200997, 0), App.Vector(50.8, -64.264231, 0)), False)
sketch9.addGeometry(Part.LineSegment(App.Vector(50.8, -64.264231, 0), App.Vector(69.067691, -96.013899, 0)), False)
sketch9.addGeometry(Part.ArcOfCircle(Part.Circle(App.Vector(60.4, -101.000997, 0), App.Vector(0, 0, 1), 10), math.radians(0), math.radians(29.914674)), False)
sketch9.addGeometry(Part.ArcOfCircle(Part.Circle(App.Vector(60.4, -101.000997, 0), App.Vector(0, 0, 1), 10), math.radians(-28.41296), math.radians(0)), False)
sketch9.addGeometry(Part.LineSegment(App.Vector(69.19541, -105.759228, 0), App.Vector(68.287536, -107.148091, 0)), False)
sketch9.addConstraint(Sketcher.Constraint("Coincident", 0, 2, 1, 1))
sketch9.addConstraint(Sketcher.Constraint("Coincident", 1, 2, 2, 2))
sketch9.addConstraint(Sketcher.Constraint("Coincident", 2, 1, 3, 1))
sketch9.addConstraint(Sketcher.Constraint("Coincident", 3, 2, 4, 1))
sketch9.addConstraint(Sketcher.Constraint("Tangent", 4, 2, 5, 2))
sketch9.addConstraint(Sketcher.Constraint("Tangent", 5, 1, 6, 2))
sketch9.addConstraint(Sketcher.Constraint("Coincident", 6, 1, 7, 1))
sketch9.addConstraint(Sketcher.Constraint("Coincident", 7, 2, 0, 1))
sketch9.addConstraint(Sketcher.Constraint("Vertical", 1))
sketch9.addConstraint(Sketcher.Constraint("Vertical", 3))
sketch9.addConstraint(Sketcher.Constraint("Coincident", 5, 3, 2, 3))
sketch9.addConstraint(Sketcher.Constraint("Equal", 2, 5))
sketch9.addConstraint(Sketcher.Constraint("Equal", 5, 6))
sketch9.addConstraint(Sketcher.Constraint("Parallel", 0, 7))
sketch9.addConstraint(Sketcher.Constraint("Horizontal", 6, 3, 5, 1))
sketch9.addConstraint(Sketcher.Constraint("Vertical", 1, 2, 2, 1))
sketch9.addConstraint(Sketcher.Constraint("Radius", 2, Q("10 mm")))
sketch9.addConstraint(Sketcher.Constraint("DistanceX", -1, 1, 2, 3, Q("60.4 mm")))
sketch9.addConstraint(Sketcher.Constraint("DistanceX", -1, 1, 0, 2, Q("50.8 mm")))
sketch9.addConstraint(Sketcher.Constraint("DistanceY", 1, 1, 1, 2, Q("30.099491 mm")))
sketch9.addConstraint(Sketcher.Constraint("DistanceY", 4, 2, -1, 1, Q("96.013899 mm")))
sketch9.addConstraint(Sketcher.Constraint("Distance", 7, Q("1.659269 mm")))
sketch9.addConstraint(Sketcher.Constraint("DistanceY", 3, 1, 3, 2, Q("33.936766 mm")))
sketch9.addConstraint(Sketcher.Constraint("DistanceX", -1, 1, 6, 1, Q("69.19541 mm")))
pad3 = body.newObject("PartDesign::Pad", "Pad002")
pad3.Profile = sketch9
pad3.Length = 1.59
pad3.Reversed = True

sketch10 = body.newObject("Sketcher::SketchObject", "Sketch009")
sketch10.AttachmentSupport = (doc.getObject("XZ_Plane"), [""])
sketch10.MapMode = "FlatFace"
sketch10.AttachmentOffset = App.Placement(App.Vector(0, 0, -14.5875), App.Rotation())
sketch10.addGeometry(Part.Circle(App.Vector(60.4, -101.000997, 0), App.Vector(0, 0, 1), 7), False)
sketch10.addConstraint(Sketcher.Constraint("Diameter", 0, Q("14 mm")))
sketch10.addConstraint(Sketcher.Constraint("DistanceX", -1, 1, 0, 3, Q("60.4 mm")))
sketch10.addConstraint(Sketcher.Constraint("DistanceY", 0, 3, -1, 1, Q("101.000997 mm")))
pocket7 = body.newObject("PartDesign::Pocket", "Pocket006")
pocket7.Profile = sketch10
pocket7.Length = 41
pocket7.Reversed = True

sketch11 = body.newObject("Sketcher::SketchObject", "Sketch010")
sketch11.AttachmentSupport = (doc.getObject("XY_Plane"), [""])
sketch11.MapMode = "FlatFace"
sketch11.AttachmentOffset = App.Placement(App.Vector(0, 0, -228.6), App.Rotation())
sketch11.addGeometry(Part.LineSegment(App.Vector(64.042871, 39.17524, 0), App.Vector(64.042871, 3.587749, 0)), False)
sketch11.addGeometry(Part.LineSegment(App.Vector(64.042871, 3.587749, 0), App.Vector(2.551022, 3.587749, 0)), False)
sketch11.addGeometry(Part.LineSegment(App.Vector(2.551022, 3.587749, 0), App.Vector(2.551022, 39.17524, 0)), False)
sketch11.addGeometry(Part.LineSegment(App.Vector(2.551022, 39.17524, 0), App.Vector(64.042871, 39.17524, 0)), False)
sketch11.addConstraint(Sketcher.Constraint("Coincident", 0, 2, 1, 1))
sketch11.addConstraint(Sketcher.Constraint("Coincident", 1, 2, 2, 1))
sketch11.addConstraint(Sketcher.Constraint("Coincident", 2, 2, 3, 1))
sketch11.addConstraint(Sketcher.Constraint("Coincident", 3, 2, 0, 1))
sketch11.addConstraint(Sketcher.Constraint("Vertical", 0))
sketch11.addConstraint(Sketcher.Constraint("Horizontal", 1))
sketch11.addConstraint(Sketcher.Constraint("Vertical", 2))
sketch11.addConstraint(Sketcher.Constraint("Horizontal", 3))
sketch11.addConstraint(Sketcher.Constraint("DistanceX", 1, 2, 1, 1, Q("61.491849 mm")))
sketch11.addConstraint(Sketcher.Constraint("DistanceY", 0, 2, 0, 1, Q("35.587491 mm")))
sketch11.addConstraint(Sketcher.Constraint("DistanceX", -1, 1, 0, 2, Q("64.042871 mm")))
sketch11.addConstraint(Sketcher.Constraint("DistanceY", -1, 1, 0, 2, Q("3.587749 mm")))
pocket8 = body.newObject("PartDesign::Pocket", "Pocket007")
pocket8.Profile = sketch11
pocket8.Length = 20
pocket8.Reversed = True
doc.recompute()

fillet3 = body.newObject("PartDesign::Fillet", "Fillet002")
fillet3.Base = (pocket8, edges_at(pocket8, [(44.145, 13.794, -208.6), (8.212, 13.794, -208.6)]))
fillet3.Radius = 10

sketch12 = body.newObject("Sketcher::SketchObject", "Sketch011")
sketch12.AttachmentSupport = (doc.getObject("XY_Plane"), [""])
sketch12.MapMode = "FlatFace"
sketch12.addGeometry(Part.LineSegment(App.Vector(-74.925672, 20.893035, 0), App.Vector(-74.925672, -1.979035, 0)), False)
sketch12.addGeometry(Part.LineSegment(App.Vector(-74.925672, -1.979035, 0), App.Vector(88.79736, -1.979035, 0)), False)
sketch12.addGeometry(Part.LineSegment(App.Vector(88.79736, -1.979035, 0), App.Vector(88.79736, 20.893035, 0)), False)
sketch12.addGeometry(Part.LineSegment(App.Vector(88.79736, 20.893035, 0), App.Vector(-74.925672, 20.893035, 0)), False)
sketch12.addConstraint(Sketcher.Constraint("Coincident", 0, 2, 1, 1))
sketch12.addConstraint(Sketcher.Constraint("Coincident", 1, 2, 2, 1))
sketch12.addConstraint(Sketcher.Constraint("Coincident", 2, 2, 3, 1))
sketch12.addConstraint(Sketcher.Constraint("Coincident", 3, 2, 0, 1))
sketch12.addConstraint(Sketcher.Constraint("Vertical", 0))
sketch12.addConstraint(Sketcher.Constraint("Horizontal", 1))
sketch12.addConstraint(Sketcher.Constraint("Vertical", 2))
sketch12.addConstraint(Sketcher.Constraint("Horizontal", 3))
sketch12.addConstraint(Sketcher.Constraint("DistanceX", 1, 1, 1, 2, Q("163.723032 mm")))
sketch12.addConstraint(Sketcher.Constraint("DistanceY", 0, 2, 0, 1, Q("22.87207 mm")))
sketch12.addConstraint(Sketcher.Constraint("DistanceX", 0, 2, -1, 1, Q("74.925672 mm")))
sketch12.addConstraint(Sketcher.Constraint("DistanceY", 0, 2, -1, 1, Q("1.979035 mm")))
pocket9 = body.newObject("PartDesign::Pocket", "Pocket008")
pocket9.Profile = sketch12
pocket9.Length = 35
doc.recompute()

fillet4 = body.newObject("PartDesign::Fillet", "Fillet003")
fillet4.Base = (pocket9, edges_at(pocket9, [(0, 13.794, -35), (50.8, 13.794, -35)]))
fillet4.Radius = 10

sketch13 = body.newObject("Sketcher::SketchObject", "Sketch012")
sketch13.AttachmentSupport = (doc.getObject("XZ_Plane"), [""])
sketch13.MapMode = "FlatFace"
sketch13.addGeometry(Part.Circle(App.Vector(45.747748, -129.863467, 0), App.Vector(0, 0, 1), 1.539112), False)
sketch13.addGeometry(Part.Circle(App.Vector(5.884676, -135.103145, 0), App.Vector(0, 0, 1), 1.255629), False)
sketch13.addGeometry(Part.Circle(App.Vector(48.400989, -71.551012, 0), App.Vector(0, 0, 1), 1.3), False)
sketch13.addGeometry(Part.Circle(App.Vector(4.659547, -82.793173, 0), App.Vector(0, 0, 1), 1.314911), False)
sketch13.addGeometry(Part.Circle(App.Vector(6.33559, -44.2888, 0), App.Vector(0, 0, 1), 1.388229), False)
sketch13.addGeometry(Part.Circle(App.Vector(43.447673, -42.868437, 0), App.Vector(0, 0, 1), 1.5), False)
sketch13.addConstraint(Sketcher.Constraint("Diameter", 5, Q("3 mm")))
sketch13.addConstraint(Sketcher.Constraint("Diameter", 2, Q("2.6 mm")))
sketch13.addConstraint(Sketcher.Constraint("Diameter", 1, Q("2.511259 mm")))
sketch13.addConstraint(Sketcher.Constraint("Diameter", 3, Q("2.629821 mm")))
sketch13.addConstraint(Sketcher.Constraint("Diameter", 4, Q("2.776458 mm")))
sketch13.addConstraint(Sketcher.Constraint("Diameter", 0, Q("3.078224 mm")))
sketch13.addConstraint(Sketcher.Constraint("DistanceY", 4, 3, -1, 1, Q("44.2888 mm")))
sketch13.addConstraint(Sketcher.Constraint("DistanceX", 3, 3, 0, 3, Q("41.088201 mm")))
sketch13.addConstraint(Sketcher.Constraint("DistanceX", 4, 3, 2, 3, Q("42.065399 mm")))
sketch13.addConstraint(Sketcher.Constraint("DistanceX", -1, 1, 2, 3, Q("48.400989 mm")))
sketch13.addConstraint(Sketcher.Constraint("DistanceY", 2, 3, -1, 1, Q("71.551012 mm")))
sketch13.addConstraint(Sketcher.Constraint("DistanceX", 1, 3, 0, 3, Q("39.863072 mm")))
sketch13.addConstraint(Sketcher.Constraint("DistanceX", 0, 3, 2, 3, Q("2.653241 mm")))
sketch13.addConstraint(Sketcher.Constraint("DistanceY", 3, 3, 2, 3, Q("11.242162 mm")))
sketch13.addConstraint(Sketcher.Constraint("DistanceY", 1, 3, 3, 3, Q("52.309972 mm")))
sketch13.addConstraint(Sketcher.Constraint("DistanceY", 0, 3, 5, 3, Q("86.995031 mm")))
sketch13.addConstraint(Sketcher.Constraint("DistanceY", 1, 3, 5, 3, Q("92.234709 mm")))
sketch13.addConstraint(Sketcher.Constraint("DistanceX", -1, 1, 5, 3, Q("43.447673 mm")))
pocket10 = body.newObject("PartDesign::Pocket", "Pocket009")
pocket10.Profile = sketch13
pocket10.Length = 42

sketch14 = body.newObject("Sketcher::SketchObject", "Sketch013")
sketch14.AttachmentSupport = (doc.getObject("XZ_Plane"), [""])
sketch14.MapMode = "FlatFace"
sketch14.AttachmentOffset = App.Placement(App.Vector(0, 0, 5.4125), App.Rotation())
sketch14.addGeometry(Part.Circle(App.Vector(24.583835, -64.593887, 0), App.Vector(0, 0, 1), 18.9), False)
sketch14.addConstraint(Sketcher.Constraint("Diameter", 0, Q("37.8 mm")))
sketch14.addConstraint(Sketcher.Constraint("DistanceX", -1, 1, 0, 3, Q("24.583835 mm")))
sketch14.addConstraint(Sketcher.Constraint("DistanceY", 0, 3, -1, 1, Q("64.593887 mm")))
pocket11 = body.newObject("PartDesign::Pocket", "Pocket010")
pocket11.Profile = sketch14
pocket11.Length = 30

sketch15 = body.newObject("Sketcher::SketchObject", "Sketch014")
sketch15.AttachmentSupport = (doc.getObject("XZ_Plane"), [""])
sketch15.MapMode = "FlatFace"
sketch15.AttachmentOffset = App.Placement(App.Vector(0, 0, -14.5875), App.Rotation())
sketch15.addGeometry(Part.ArcOfCircle(Part.Circle(App.Vector(10, -45, 0), App.Vector(0, 0, 1), 10), math.radians(90), math.radians(180)), False)
sketch15.addGeometry(Part.LineSegment(App.Vector(0, -45, 0), App.Vector(0, -35, 0)), False)
sketch15.addGeometry(Part.ArcOfCircle(Part.Circle(App.Vector(20.89573, -35, 0), App.Vector(0, 0, 1), 20.89573), math.radians(-0.135085), math.radians(180)), False)
sketch15.addGeometry(Part.ArcOfCircle(Part.Circle(App.Vector(40.8, -45, 0), App.Vector(0, 0, 1), 10), math.radians(84.310341), math.radians(90)), False)
sketch15.addGeometry(Part.LineSegment(App.Vector(40.8, -35, 0), App.Vector(30.546187, -35, 0)), False)
sketch15.addGeometry(Part.ArcOfCircle(Part.Circle(App.Vector(23.546187, -35, 0), App.Vector(0, 0, 1), 7), math.radians(0), math.radians(180)), False)
sketch15.addGeometry(Part.LineSegment(App.Vector(16.546187, -35, 0), App.Vector(10, -35, 0)), False)
sketch15.addConstraint(Sketcher.Constraint("Tangent", 0, 2, 1, 1))
sketch15.addConstraint(Sketcher.Constraint("Tangent", 1, 2, 2, 2))
sketch15.addConstraint(Sketcher.Constraint("Coincident", 2, 1, 3, 1))
sketch15.addConstraint(Sketcher.Constraint("Tangent", 3, 2, 4, 1))
sketch15.addConstraint(Sketcher.Constraint("Coincident", 4, 2, 5, 1))
sketch15.addConstraint(Sketcher.Constraint("Coincident", 5, 2, 6, 1))
sketch15.addConstraint(Sketcher.Constraint("Tangent", 6, 2, 0, 1))
sketch15.addConstraint(Sketcher.Constraint("Vertical", 1))
sketch15.addConstraint(Sketcher.Constraint("Horizontal", 4))
sketch15.addConstraint(Sketcher.Constraint("Horizontal", 6))
sketch15.addConstraint(Sketcher.Constraint("Equal", 0, 3))
sketch15.addConstraint(Sketcher.Constraint("PointOnObject", 0, 2, -2))
sketch15.addConstraint(Sketcher.Constraint("Horizontal", 0, 3, 3, 3))
sketch15.addConstraint(Sketcher.Constraint("Horizontal", 2, 3, 5, 3))
sketch15.addConstraint(Sketcher.Constraint("Horizontal", 1, 2, 3, 2))
sketch15.addConstraint(Sketcher.Constraint("Radius", 0, Q("10 mm")))
sketch15.addConstraint(Sketcher.Constraint("Radius", 5, Q("7 mm")))
sketch15.addConstraint(Sketcher.Constraint("DistanceY", 0, 3, -1, 1, Q("45 mm")))
sketch15.addConstraint(Sketcher.Constraint("DistanceX", -1, 1, 3, 3, Q("40.8 mm")))
sketch15.addConstraint(Sketcher.Constraint("Radius", 2, Q("20.89573 mm")))
sketch15.addConstraint(Sketcher.Constraint("DistanceX", 4, 2, 4, 1, Q("10.253813 mm")))
pad4 = body.newObject("PartDesign::Pad", "Pad003")
pad4.Profile = sketch15
pad4.Length = 3.175

doc.recompute()
